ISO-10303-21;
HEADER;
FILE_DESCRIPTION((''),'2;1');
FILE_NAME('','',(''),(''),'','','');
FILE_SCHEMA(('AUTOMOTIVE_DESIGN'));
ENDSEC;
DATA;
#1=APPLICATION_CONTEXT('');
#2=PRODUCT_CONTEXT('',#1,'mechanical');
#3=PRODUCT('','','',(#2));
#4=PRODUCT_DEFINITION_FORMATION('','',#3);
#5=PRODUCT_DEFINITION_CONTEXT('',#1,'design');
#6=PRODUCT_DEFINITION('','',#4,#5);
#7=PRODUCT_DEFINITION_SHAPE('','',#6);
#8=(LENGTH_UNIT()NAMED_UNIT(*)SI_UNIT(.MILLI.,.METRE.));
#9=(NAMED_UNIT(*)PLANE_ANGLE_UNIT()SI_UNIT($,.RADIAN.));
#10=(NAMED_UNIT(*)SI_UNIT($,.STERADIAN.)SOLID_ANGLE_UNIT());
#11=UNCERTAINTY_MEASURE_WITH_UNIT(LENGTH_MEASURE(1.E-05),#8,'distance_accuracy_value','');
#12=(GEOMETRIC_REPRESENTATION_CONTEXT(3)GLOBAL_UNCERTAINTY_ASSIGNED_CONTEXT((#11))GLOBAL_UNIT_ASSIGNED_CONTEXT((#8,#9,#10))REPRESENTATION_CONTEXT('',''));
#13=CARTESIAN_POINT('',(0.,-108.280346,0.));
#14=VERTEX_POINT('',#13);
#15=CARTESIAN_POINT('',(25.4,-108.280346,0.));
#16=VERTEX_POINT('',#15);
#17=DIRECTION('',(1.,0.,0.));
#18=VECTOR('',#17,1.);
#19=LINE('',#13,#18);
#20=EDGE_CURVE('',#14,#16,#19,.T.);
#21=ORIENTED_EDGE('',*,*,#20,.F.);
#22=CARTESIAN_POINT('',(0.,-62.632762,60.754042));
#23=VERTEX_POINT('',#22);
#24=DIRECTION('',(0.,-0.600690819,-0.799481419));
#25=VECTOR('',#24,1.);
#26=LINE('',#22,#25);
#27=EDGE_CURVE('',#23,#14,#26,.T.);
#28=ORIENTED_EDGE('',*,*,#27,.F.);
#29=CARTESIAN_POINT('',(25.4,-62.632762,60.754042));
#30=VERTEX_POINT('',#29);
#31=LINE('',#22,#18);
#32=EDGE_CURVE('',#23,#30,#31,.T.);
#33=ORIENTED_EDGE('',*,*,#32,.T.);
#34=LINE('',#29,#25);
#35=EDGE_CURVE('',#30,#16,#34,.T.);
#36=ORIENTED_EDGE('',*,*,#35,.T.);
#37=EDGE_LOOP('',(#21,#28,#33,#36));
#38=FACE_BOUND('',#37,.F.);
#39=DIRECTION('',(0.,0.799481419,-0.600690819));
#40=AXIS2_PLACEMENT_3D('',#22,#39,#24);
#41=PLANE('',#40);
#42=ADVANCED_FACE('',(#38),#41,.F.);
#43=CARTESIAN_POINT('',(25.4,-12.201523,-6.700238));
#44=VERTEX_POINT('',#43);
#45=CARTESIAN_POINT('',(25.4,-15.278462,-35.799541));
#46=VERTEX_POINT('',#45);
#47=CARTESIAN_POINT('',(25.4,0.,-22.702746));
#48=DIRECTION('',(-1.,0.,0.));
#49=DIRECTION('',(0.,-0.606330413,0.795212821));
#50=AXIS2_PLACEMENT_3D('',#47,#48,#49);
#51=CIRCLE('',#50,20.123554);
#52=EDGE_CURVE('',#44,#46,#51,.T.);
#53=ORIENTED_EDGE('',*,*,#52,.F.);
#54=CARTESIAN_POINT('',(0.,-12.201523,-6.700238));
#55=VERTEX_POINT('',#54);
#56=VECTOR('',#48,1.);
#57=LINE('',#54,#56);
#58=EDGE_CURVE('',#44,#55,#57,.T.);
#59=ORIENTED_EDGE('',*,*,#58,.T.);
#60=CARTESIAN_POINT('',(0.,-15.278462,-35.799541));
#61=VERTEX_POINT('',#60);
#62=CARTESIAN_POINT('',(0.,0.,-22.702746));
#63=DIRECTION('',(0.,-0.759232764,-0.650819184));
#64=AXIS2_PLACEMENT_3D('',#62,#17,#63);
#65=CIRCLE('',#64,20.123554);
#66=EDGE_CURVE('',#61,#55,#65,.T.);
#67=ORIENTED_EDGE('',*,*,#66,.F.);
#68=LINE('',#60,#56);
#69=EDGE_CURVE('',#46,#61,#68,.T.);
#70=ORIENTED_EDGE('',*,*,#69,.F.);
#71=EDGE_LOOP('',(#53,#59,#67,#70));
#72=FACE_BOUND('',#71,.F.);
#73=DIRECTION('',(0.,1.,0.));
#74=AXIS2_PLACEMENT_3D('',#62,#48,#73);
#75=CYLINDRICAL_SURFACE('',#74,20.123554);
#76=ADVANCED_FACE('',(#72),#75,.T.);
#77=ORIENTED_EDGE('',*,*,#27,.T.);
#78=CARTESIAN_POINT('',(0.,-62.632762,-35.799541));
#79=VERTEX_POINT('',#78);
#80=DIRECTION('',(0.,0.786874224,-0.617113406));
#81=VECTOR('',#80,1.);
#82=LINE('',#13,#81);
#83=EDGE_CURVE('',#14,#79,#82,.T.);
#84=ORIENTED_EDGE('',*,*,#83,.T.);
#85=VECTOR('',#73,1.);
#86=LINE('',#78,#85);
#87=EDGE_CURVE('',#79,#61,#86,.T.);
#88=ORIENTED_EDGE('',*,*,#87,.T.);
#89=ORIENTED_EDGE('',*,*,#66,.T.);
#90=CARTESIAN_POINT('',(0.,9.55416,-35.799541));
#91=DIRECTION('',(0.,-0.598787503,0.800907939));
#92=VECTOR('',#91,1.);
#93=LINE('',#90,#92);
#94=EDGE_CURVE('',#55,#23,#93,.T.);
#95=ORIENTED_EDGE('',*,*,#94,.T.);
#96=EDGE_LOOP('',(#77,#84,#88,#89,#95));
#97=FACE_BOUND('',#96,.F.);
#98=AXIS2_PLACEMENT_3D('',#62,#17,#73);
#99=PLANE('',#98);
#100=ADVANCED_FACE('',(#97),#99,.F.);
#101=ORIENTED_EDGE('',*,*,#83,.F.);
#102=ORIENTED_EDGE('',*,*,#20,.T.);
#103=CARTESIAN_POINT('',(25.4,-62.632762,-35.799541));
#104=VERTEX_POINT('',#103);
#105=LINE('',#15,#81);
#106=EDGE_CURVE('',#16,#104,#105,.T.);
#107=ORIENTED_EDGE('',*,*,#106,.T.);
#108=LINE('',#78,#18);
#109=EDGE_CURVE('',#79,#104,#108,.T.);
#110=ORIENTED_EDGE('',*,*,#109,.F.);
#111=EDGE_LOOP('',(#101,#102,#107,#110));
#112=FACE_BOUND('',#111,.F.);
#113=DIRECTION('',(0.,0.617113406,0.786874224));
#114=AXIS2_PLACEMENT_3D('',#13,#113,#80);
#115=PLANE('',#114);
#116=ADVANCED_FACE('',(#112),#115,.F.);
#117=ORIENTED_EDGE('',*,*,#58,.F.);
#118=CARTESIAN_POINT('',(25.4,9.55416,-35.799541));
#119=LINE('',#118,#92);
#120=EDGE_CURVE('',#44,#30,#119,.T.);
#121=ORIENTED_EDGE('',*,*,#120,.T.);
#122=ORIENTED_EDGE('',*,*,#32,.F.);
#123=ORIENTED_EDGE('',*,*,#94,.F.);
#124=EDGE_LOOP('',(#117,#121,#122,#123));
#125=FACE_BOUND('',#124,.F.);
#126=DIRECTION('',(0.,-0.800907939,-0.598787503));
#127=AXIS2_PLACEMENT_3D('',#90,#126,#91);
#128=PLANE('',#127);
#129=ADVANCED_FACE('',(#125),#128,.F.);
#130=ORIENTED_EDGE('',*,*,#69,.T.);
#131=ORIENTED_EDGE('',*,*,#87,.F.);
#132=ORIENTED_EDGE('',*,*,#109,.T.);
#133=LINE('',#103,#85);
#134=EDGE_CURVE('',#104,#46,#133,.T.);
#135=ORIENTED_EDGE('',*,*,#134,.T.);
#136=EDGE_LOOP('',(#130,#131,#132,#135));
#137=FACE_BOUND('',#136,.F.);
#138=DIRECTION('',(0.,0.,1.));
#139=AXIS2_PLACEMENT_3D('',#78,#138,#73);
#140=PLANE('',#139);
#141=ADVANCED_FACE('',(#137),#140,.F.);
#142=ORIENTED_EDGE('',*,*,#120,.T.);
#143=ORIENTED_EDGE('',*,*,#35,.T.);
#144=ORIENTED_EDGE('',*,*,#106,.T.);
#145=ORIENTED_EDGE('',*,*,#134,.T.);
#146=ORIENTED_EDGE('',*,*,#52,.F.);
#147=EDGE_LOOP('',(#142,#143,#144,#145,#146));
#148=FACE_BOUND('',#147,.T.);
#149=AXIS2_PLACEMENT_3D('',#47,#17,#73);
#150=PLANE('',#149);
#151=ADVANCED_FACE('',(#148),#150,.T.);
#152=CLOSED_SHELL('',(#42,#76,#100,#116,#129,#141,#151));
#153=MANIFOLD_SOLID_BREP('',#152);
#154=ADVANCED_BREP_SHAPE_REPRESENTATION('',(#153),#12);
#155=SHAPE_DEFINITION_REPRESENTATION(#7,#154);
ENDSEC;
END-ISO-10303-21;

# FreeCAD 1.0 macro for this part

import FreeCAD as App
import Part
import Sketcher

V = App.Vector
Q = App.Units.Quantity


def add_polygon(sketch, points):
    """Adds a closed chain of lines whose ends are joined by coincident constraints."""
    first, n = sketch.GeometryCount, len(points)
    for a, b in zip(points, points[1:] + points[:1]):
        sketch.addGeometry(Part.LineSegment(App.Vector(*a, 0), App.Vector(*b, 0)), False)
    for i in range(n):
        sketch.addConstraint(Sketcher.Constraint("Coincident", first + i, 2, first + (i + 1) % n, 1))

doc = App.newDocument("Part")
body = doc.addObject("PartDesign::Body", "Body")

sketch1 = body.newObject("Sketcher::SketchObject", "Sketch")
sketch1.AttachmentSupport = (doc.getObject("YZ_Plane"), [""])
sketch1.MapMode = "FlatFace"
add_polygon(sketch1, [(-63, -36), (10, -36), (-63, 61), (-108, 0)])
sketch1.addConstraint(Sketcher.Constraint("Horizontal", 0))
sketch1.addConstraint(Sketcher.Constraint("PointOnObject", 2, 2, -1))
sketch1.addConstraint(Sketcher.Constraint("Vertical", 1, 2, 3, 2))
sketch1.addConstraint(Sketcher.Constraint("DistanceX", 0, 1, 0, 2, Q("72.186922 mm")))
sketch1.addConstraint(Sketcher.Constraint("DistanceX", -1, 1, 0, 2, Q("9.55416 mm")))
sketch1.addConstraint(Sketcher.Constraint("DistanceY", 0, 2, -1, 1, Q("35.799541 mm")))
sketch1.addConstraint(Sketcher.Constraint("DistanceY", -1, 1, 1, 2, Q("60.754042 mm")))
sketch1.addConstraint(Sketcher.Constraint("Distance", 2, Q("75.991812 mm")))
pad1 = body.newObject("PartDesign::Pad", "Pad")
pad1.Profile = sketch1
pad1.Length = Q("1 in")

sketch2 = body.newObject("Sketcher::SketchObject", "Sketch001")
sketch2.AttachmentSupport = (doc.getObject("YZ_Plane"), [""])
sketch2.MapMode = "FlatFace"
sketch2.addGeometry(Part.Circle(V(0, -23, 0), V(0, 0, 1), 20), False)
sketch2.addConstraint(Sketcher.Constraint("PointOnObject", 0, 3, -2))
sketch2.addConstraint(Sketcher.Constraint("Diameter", 0, Q("40.247108 mm")))
sketch2.addConstraint(Sketcher.Constraint("DistanceY", 0, 3, -1, 1, Q("22.702746 mm")))
pad2 = body.newObject("PartDesign::Pad", "Pad001")
pad2.Profile = sketch2
pad2.Length = Q("1 in")

doc.recompute()
